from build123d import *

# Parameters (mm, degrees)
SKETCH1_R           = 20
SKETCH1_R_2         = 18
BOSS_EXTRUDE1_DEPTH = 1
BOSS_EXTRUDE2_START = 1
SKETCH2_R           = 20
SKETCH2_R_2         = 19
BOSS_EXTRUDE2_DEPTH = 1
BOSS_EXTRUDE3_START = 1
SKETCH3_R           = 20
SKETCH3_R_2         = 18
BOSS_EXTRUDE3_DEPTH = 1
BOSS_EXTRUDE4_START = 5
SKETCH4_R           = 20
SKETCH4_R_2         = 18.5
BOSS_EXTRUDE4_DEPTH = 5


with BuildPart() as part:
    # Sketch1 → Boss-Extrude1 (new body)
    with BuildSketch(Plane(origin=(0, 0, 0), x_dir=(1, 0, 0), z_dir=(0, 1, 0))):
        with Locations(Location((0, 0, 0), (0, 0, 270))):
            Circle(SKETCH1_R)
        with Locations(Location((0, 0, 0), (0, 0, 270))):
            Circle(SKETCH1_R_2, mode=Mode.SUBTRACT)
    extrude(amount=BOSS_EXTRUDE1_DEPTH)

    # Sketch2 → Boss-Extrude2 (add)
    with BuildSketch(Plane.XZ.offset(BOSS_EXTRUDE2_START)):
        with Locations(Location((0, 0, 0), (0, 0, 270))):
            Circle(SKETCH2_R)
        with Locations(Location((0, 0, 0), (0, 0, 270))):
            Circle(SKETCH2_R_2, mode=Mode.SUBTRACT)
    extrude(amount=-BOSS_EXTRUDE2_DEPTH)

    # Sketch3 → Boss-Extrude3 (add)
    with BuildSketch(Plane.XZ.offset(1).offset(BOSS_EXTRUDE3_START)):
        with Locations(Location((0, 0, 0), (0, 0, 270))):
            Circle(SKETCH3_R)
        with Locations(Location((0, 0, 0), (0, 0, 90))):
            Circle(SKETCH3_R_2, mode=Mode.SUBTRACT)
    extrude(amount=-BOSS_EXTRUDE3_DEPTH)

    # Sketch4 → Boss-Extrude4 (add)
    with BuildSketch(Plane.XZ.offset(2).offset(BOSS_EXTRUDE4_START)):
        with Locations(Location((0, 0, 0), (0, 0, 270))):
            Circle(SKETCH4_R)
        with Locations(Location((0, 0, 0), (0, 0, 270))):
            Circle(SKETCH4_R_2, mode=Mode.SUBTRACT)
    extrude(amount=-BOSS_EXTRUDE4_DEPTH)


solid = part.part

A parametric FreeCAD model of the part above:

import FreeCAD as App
import Part
import Sketcher

doc = App.newDocument("Part")
body = doc.addObject("PartDesign::Body", "Body")

sketch1 = doc.addObject("Sketcher::SketchObject", "Sketch")
body.addObject(sketch1)
sketch1.AttachmentSupport = (doc.XZ_Plane, [""])
sketch1.MapMode = "FlatFace"
sketch1.addGeometry([
    Part.Circle(App.Vector(0, 0, 0), App.Vector(0, 0, 1), 20),
    Part.Circle(App.Vector(0, 0, 0), App.Vector(0, 0, 1), 18),
], False)
sketch1.addConstraint([
    Sketcher.Constraint("Coincident", 0, 3, -1, 1),
    Sketcher.Constraint("Coincident", 1, 3, -1, 1),
    Sketcher.Constraint("Diameter", 0, 40.0),
    Sketcher.Constraint("Diameter", 1, 36.0),
])
pad1 = doc.addObject("PartDesign::Pad", "Pad")
body.addObject(pad1)
pad1.Profile = sketch1
pad1.Length = 1
pad1.Reversed = True

sketch2 = doc.addObject("Sketcher::SketchObject", "Sketch001")
body.addObject(sketch2)
sketch2.AttachmentSupport = (doc.XZ_Plane, [""])
sketch2.MapMode = "FlatFace"
sketch2.AttachmentOffset = App.Placement(App.Vector(0, 0, 1), App.Rotation())
sketch2.addGeometry([
    Part.Circle(App.Vector(0, 0, 0), App.Vector(0, 0, 1), 20),
    Part.Circle(App.Vector(0, 0, 0), App.Vector(0, 0, 1), 19),
], False)
sketch2.addConstraint([
    Sketcher.Constraint("Coincident", 0, 3, -1, 1),
    Sketcher.Constraint("Coincident", 1, 3, -1, 1),
    Sketcher.Constraint("Diameter", 0, 40.0),
    Sketcher.Constraint("Diameter", 1, 38.0),
])
pad2 = doc.addObject("PartDesign::Pad", "Pad001")
body.addObject(pad2)
pad2.Profile = sketch2
pad2.Length = 1
pad2.Reversed = True

sketch3 = doc.addObject("Sketcher::SketchObject", "Sketch002")
body.addObject(sketch3)
sketch3.AttachmentSupport = (doc.XZ_Plane, [""])
sketch3.MapMode = "FlatFace"
sketch3.AttachmentOffset = App.Placement(App.Vector(0, 0, 2), App.Rotation())
sketch3.addGeometry([
    Part.Circle(App.Vector(0, 0, 0), App.Vector(0, 0, 1), 20),
    Part.Circle(App.Vector(0, 0, 0), App.Vector(0, 0, 1), 18),
], False)
sketch3.addConstraint([
    Sketcher.Constraint("Coincident", 0, 3, -1, 1),
    Sketcher.Constraint("Coincident", 1, 3, -1, 1),
    Sketcher.Constraint("Diameter", 0, 40.0),
    Sketcher.Constraint("Diameter", 1, 36.0),
])
pad3 = doc.addObject("PartDesign::Pad", "Pad002")
body.addObject(pad3)
pad3.Profile = sketch3
pad3.Length = 1
pad3.Reversed = True

sketch4 = doc.addObject("Sketcher::SketchObject", "Sketch003")
body.addObject(sketch4)
sketch4.AttachmentSupport = (doc.XZ_Plane, [""])
sketch4.MapMode = "FlatFace"
sketch4.AttachmentOffset = App.Placement(App.Vector(0, 0, 7), App.Rotation())
sketch4.addGeometry([
    Part.Circle(App.Vector(0, 0, 0), App.Vector(0, 0, 1), 20),
    Part.Circle(App.Vector(0, 0, 0), App.Vector(0, 0, 1), 18),
], False)
sketch4.addConstraint([
    Sketcher.Constraint("Coincident", 0, 3, -1, 1),
    Sketcher.Constraint("Coincident", 1, 3, -1, 1),
    Sketcher.Constraint("Diameter", 0, 40.0),
    Sketcher.Constraint("Diameter", 1, 37.0),
])
pad4 = doc.addObject("PartDesign::Pad", "Pad003")
body.addObject(pad4)
pad4.Profile = sketch4
pad4.Length = 5
pad4.Reversed = True

doc.recompute()
